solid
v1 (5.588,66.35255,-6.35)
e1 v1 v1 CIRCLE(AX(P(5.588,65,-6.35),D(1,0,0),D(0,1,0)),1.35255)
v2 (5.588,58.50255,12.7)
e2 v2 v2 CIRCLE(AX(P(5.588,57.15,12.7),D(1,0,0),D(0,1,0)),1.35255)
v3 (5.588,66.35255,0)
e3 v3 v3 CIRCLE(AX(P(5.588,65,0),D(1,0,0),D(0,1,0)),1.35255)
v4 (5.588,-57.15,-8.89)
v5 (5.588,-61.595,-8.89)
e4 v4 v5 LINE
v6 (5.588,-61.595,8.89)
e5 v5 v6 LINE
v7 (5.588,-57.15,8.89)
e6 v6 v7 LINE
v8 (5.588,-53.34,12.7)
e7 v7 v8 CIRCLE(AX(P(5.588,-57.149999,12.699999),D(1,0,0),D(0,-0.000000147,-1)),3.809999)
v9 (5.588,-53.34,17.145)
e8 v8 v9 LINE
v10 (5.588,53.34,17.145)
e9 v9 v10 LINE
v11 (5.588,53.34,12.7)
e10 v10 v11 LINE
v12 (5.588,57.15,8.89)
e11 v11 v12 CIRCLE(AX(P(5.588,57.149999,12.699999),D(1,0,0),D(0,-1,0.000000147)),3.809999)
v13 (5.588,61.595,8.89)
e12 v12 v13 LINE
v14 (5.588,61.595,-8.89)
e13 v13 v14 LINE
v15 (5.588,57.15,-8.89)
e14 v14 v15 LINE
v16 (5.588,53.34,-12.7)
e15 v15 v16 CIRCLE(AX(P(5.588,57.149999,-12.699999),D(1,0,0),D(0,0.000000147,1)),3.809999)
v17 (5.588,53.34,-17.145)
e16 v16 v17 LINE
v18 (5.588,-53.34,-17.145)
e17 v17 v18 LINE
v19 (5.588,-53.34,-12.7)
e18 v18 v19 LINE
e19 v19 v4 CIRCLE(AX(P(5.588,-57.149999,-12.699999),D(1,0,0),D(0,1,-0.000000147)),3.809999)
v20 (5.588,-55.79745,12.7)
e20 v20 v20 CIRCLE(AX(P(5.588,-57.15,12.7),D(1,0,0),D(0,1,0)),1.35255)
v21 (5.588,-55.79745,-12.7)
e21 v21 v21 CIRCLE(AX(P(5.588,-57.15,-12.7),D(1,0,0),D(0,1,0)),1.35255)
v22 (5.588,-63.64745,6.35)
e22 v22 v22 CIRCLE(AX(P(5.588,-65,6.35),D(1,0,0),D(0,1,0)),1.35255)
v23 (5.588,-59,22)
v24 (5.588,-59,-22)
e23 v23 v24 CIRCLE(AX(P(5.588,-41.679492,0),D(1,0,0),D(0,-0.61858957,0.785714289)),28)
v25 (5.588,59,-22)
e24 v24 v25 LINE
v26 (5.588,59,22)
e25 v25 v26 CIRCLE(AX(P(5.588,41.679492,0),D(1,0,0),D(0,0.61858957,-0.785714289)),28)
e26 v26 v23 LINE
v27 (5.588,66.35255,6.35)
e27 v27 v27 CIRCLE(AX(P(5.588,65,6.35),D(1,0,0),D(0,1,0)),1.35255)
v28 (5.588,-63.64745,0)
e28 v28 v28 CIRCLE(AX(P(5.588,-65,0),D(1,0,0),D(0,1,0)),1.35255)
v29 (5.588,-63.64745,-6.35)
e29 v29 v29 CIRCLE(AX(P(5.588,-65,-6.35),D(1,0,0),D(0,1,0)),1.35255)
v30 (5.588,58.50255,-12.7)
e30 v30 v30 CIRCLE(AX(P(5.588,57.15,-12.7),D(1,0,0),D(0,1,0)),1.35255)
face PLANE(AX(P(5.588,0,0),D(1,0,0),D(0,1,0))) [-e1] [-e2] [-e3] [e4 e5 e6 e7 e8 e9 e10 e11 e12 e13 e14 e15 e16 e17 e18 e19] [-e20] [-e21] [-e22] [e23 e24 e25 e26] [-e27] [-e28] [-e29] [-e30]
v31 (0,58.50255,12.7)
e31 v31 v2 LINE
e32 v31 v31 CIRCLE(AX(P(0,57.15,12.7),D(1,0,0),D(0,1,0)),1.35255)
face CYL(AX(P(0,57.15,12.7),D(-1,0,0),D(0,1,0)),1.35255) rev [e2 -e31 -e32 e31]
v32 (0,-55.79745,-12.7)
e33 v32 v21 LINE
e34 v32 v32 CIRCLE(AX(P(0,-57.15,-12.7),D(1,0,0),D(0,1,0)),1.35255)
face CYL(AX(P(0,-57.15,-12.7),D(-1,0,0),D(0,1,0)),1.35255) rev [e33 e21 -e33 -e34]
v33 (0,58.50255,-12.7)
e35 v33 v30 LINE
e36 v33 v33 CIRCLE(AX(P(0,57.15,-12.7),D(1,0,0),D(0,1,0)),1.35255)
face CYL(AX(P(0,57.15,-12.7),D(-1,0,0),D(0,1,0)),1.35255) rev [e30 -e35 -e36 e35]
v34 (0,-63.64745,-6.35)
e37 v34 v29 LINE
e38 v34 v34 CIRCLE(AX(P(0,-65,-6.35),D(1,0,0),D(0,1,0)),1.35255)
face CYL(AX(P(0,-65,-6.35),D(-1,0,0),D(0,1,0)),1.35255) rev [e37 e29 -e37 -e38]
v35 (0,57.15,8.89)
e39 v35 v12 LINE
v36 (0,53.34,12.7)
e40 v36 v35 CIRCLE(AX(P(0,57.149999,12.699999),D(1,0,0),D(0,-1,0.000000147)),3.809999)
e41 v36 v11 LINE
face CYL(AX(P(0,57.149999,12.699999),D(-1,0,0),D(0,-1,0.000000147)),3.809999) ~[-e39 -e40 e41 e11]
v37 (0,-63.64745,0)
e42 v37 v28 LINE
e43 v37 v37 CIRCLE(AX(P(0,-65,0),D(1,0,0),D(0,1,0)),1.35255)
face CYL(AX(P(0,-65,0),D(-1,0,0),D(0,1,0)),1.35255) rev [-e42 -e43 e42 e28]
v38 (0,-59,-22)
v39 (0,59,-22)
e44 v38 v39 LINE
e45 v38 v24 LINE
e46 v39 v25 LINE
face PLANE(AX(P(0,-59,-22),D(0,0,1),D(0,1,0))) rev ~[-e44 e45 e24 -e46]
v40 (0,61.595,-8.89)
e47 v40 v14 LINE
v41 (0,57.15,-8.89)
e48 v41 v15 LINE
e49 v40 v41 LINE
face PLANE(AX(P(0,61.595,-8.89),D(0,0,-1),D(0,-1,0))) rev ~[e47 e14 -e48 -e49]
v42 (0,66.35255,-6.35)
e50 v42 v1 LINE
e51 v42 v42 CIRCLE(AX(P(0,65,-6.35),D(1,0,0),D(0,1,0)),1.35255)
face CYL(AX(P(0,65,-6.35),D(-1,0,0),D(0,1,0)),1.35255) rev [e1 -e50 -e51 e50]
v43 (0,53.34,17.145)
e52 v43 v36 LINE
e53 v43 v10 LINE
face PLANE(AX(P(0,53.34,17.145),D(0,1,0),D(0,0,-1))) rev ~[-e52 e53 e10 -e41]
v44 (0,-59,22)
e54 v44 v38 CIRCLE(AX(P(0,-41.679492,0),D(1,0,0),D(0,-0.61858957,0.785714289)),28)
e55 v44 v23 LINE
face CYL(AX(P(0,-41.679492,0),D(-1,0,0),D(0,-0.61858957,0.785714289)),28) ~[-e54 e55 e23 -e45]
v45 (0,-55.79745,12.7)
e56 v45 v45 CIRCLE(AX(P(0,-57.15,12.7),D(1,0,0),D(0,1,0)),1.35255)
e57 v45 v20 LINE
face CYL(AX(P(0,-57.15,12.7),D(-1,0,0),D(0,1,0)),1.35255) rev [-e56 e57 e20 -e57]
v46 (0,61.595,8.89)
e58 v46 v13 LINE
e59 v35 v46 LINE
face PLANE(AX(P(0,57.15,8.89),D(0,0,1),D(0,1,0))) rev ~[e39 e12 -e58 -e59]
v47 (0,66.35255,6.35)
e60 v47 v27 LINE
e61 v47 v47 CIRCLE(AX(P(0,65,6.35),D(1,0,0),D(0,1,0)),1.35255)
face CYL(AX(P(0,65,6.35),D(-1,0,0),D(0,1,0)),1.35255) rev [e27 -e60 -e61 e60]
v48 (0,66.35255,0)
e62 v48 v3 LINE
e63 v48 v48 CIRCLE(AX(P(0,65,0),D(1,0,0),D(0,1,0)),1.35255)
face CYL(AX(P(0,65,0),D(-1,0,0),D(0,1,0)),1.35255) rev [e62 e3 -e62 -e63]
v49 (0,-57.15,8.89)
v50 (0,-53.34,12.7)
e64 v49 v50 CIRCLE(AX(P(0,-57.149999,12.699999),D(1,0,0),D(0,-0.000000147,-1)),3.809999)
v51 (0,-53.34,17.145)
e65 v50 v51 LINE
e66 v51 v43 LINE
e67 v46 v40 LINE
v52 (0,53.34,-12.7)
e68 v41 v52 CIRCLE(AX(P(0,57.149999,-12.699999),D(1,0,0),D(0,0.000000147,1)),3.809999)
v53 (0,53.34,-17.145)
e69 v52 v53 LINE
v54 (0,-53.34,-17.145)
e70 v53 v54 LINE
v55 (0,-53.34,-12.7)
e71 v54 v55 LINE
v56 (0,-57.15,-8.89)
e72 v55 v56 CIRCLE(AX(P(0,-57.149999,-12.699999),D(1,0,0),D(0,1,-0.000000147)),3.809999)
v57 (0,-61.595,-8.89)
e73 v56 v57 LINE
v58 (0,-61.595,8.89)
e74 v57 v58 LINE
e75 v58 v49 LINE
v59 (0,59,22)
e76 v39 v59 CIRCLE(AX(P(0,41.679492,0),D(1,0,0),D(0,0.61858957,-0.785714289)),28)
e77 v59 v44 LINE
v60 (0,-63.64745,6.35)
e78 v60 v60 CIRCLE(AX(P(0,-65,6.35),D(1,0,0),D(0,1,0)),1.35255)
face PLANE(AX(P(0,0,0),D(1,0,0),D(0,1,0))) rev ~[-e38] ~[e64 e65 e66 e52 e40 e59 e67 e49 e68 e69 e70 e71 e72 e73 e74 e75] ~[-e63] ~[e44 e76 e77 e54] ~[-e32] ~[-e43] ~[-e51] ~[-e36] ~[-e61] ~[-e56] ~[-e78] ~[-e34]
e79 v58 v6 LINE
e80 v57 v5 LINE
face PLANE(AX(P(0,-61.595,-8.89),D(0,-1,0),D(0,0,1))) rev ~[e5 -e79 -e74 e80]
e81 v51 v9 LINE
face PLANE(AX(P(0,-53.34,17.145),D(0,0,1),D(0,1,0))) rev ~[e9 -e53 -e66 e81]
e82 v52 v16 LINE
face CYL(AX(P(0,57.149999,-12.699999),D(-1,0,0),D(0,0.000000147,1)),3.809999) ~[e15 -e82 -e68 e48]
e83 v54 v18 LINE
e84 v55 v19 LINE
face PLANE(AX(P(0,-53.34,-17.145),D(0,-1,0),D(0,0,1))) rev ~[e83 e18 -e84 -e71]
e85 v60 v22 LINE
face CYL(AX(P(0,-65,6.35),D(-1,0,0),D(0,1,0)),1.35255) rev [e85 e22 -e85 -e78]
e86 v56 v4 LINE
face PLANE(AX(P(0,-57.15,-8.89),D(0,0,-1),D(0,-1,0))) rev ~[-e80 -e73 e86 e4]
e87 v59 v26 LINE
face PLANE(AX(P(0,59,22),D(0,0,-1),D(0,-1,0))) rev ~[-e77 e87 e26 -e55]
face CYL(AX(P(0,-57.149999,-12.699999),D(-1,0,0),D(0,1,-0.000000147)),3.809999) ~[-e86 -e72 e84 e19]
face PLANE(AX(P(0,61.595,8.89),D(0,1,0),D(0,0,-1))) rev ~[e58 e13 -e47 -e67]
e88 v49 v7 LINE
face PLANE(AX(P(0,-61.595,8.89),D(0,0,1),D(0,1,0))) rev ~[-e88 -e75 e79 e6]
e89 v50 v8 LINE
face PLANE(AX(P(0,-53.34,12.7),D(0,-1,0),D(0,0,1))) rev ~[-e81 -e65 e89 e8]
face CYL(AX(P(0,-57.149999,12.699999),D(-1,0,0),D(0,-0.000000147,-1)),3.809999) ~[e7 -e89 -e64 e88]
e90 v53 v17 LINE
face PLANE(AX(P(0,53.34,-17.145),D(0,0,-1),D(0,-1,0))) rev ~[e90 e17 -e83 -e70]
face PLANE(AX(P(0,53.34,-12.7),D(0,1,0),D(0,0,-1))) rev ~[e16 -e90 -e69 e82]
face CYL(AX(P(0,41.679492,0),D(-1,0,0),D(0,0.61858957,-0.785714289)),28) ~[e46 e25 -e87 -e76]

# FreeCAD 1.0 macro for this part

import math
import FreeCAD as App
import Part
import Sketcher
from FreeCAD import Vector
Q = App.Units.Quantity

doc = App.newDocument("Part")
body = doc.addObject("PartDesign::Body", "Body")

# Sketch on YZ plane
sketch1 = doc.addObject("Sketcher::SketchObject", "Sketch")
body.addObject(sketch1)
sketch1.AttachmentSupport = (doc.YZ_Plane, [""])
sketch1.MapMode = "FlatFace"
sketch1.addGeometry([
    Part.ArcOfCircle(Part.Circle(Vector(41.7, 0, 0), Vector(0, 0, 1), 28), math.radians(-52), math.radians(52)),  # 0
    Part.LineSegment(Vector(59, 22, 0), Vector(-59, 22, 0)),  # 1
    Part.ArcOfCircle(Part.Circle(Vector(-41.7, 0, 0), Vector(0, 0, 1), 28), math.radians(128), math.radians(232)),  # 2
    Part.LineSegment(Vector(-59, -22, 0), Vector(59, -22, 0)),  # 3
    Part.Circle(Vector(-57.1, -12.7, 0), Vector(0, 0, 1), 1.4),  # 4
    Part.Circle(Vector(-65, -6.3, 0), Vector(0, 0, 1), 1.4),  # 5
    Part.Circle(Vector(57.1, -12.7, 0), Vector(0, 0, 1), 1.4),  # 6
    Part.Circle(Vector(65, -6.3, 0), Vector(0, 0, 1), 1.4),  # 7
    Part.Circle(Vector(-65, 0, 0), Vector(0, 0, 1), 1.4),  # 8
    Part.Circle(Vector(-65, 6.3, 0), Vector(0, 0, 1), 1.4),  # 9
    Part.Circle(Vector(-57.1, 12.7, 0), Vector(0, 0, 1), 1.4),  # 10
    Part.LineSegment(Vector(-53.3, 12.7, 0), Vector(-53.3, 17.1, 0)),  # 11
    Part.LineSegment(Vector(-53.3, 17.1, 0), Vector(53.3, 17.1, 0)),  # 12
    Part.LineSegment(Vector(53.3, 17.1, 0), Vector(53.3, 12.7, 0)),  # 13
    Part.ArcOfCircle(Part.Circle(Vector(57.1, 12.7, 0), Vector(0, 0, 1), 3.8), math.radians(180), math.radians(270)),  # 14
    Part.LineSegment(Vector(57.1, 8.9, 0), Vector(61.6, 8.9, 0)),  # 15
    Part.LineSegment(Vector(61.6, 8.9, 0), Vector(61.6, -8.9, 0)),  # 16
    Part.LineSegment(Vector(61.6, -8.9, 0), Vector(57.1, -8.9, 0)),  # 17
    Part.ArcOfCircle(Part.Circle(Vector(57.1, -12.7, 0), Vector(0, 0, 1), 3.8), math.radians(90), math.radians(180)),  # 18
    Part.LineSegment(Vector(53.3, -12.7, 0), Vector(53.3, -17.1, 0)),  # 19
    Part.LineSegment(Vector(53.3, -17.1, 0), Vector(-53.3, -17.1, 0)),  # 20
    Part.LineSegment(Vector(-53.3, -17.1, 0), Vector(-53.3, -12.7, 0)),  # 21
    Part.ArcOfCircle(Part.Circle(Vector(-57.1, -12.7, 0), Vector(0, 0, 1), 3.8), math.radians(0), math.radians(90)),  # 22
    Part.LineSegment(Vector(-57.1, -8.9, 0), Vector(-61.6, -8.9, 0)),  # 23
    Part.LineSegment(Vector(-61.6, -8.9, 0), Vector(-61.6, 8.9, 0)),  # 24
    Part.LineSegment(Vector(-61.6, 8.9, 0), Vector(-57.1, 8.9, 0)),  # 25
    Part.ArcOfCircle(Part.Circle(Vector(-57.1, 12.7, 0), Vector(0, 0, 1), 3.8), math.radians(-90), math.radians(0)),  # 26
    Part.Circle(Vector(65, 0, 0), Vector(0, 0, 1), 1.4),  # 27
    Part.Circle(Vector(65, 6.3, 0), Vector(0, 0, 1), 1.4),  # 28
    Part.Circle(Vector(57.1, 12.7, 0), Vector(0, 0, 1), 1.4),  # 29
], False)
sketch1.addConstraint([
    Sketcher.Constraint("Coincident", 0, 2, 1, 1),
    Sketcher.Constraint("Coincident", 1, 2, 2, 1),
    Sketcher.Constraint("Coincident", 2, 2, 3, 1),
    Sketcher.Constraint("Coincident", 3, 2, 0, 1),
    Sketcher.Constraint("Coincident", 11, 2, 12, 1),
    Sketcher.Constraint("Coincident", 12, 2, 13, 1),
    Sketcher.Constraint("Tangent", 13, 2, 14, 1),
    Sketcher.Constraint("Tangent", 14, 2, 15, 1),
    Sketcher.Constraint("Coincident", 15, 2, 16, 1),
    Sketcher.Constraint("Coincident", 16, 2, 17, 1),
    Sketcher.Constraint("Tangent", 17, 2, 18, 1),
    Sketcher.Constraint("Tangent", 18, 2, 19, 1),
    Sketcher.Constraint("Coincident", 19, 2, 20, 1),
    Sketcher.Constraint("Coincident", 20, 2, 21, 1),
    Sketcher.Constraint("Tangent", 21, 2, 22, 1),
    Sketcher.Constraint("Tangent", 22, 2, 23, 1),
    Sketcher.Constraint("Coincident", 23, 2, 24, 1),
    Sketcher.Constraint("Coincident", 24, 2, 25, 1),
    Sketcher.Constraint("Tangent", 25, 2, 26, 1),
    Sketcher.Constraint("Tangent", 26, 2, 11, 1),
    Sketcher.Constraint("Horizontal", 1),
    Sketcher.Constraint("Horizontal", 3),
    Sketcher.Constraint("Vertical", 11),
    Sketcher.Constraint("Horizontal", 12),
    Sketcher.Constraint("Vertical", 13),
    Sketcher.Constraint("Horizontal", 15),
    Sketcher.Constraint("Vertical", 16),
    Sketcher.Constraint("Horizontal", 17),
    Sketcher.Constraint("Vertical", 19),
    Sketcher.Constraint("Horizontal", 20),
    Sketcher.Constraint("Vertical", 21),
    Sketcher.Constraint("Horizontal", 23),
    Sketcher.Constraint("Vertical", 24),
    Sketcher.Constraint("Horizontal", 25),
    Sketcher.Constraint("Coincident", 18, 3, 6, 3),
    Sketcher.Constraint("Coincident", 22, 3, 4, 3),
    Sketcher.Constraint("Coincident", 26, 3, 10, 3),
    Sketcher.Constraint("Coincident", 29, 3, 14, 3),
    Sketcher.Constraint("Equal", 0, 2),
    Sketcher.Constraint("Equal", 4, 5),
    Sketcher.Constraint("Equal", 5, 6),
    Sketcher.Constraint("Equal", 6, 7),
    Sketcher.Constraint("Equal", 7, 8),
    Sketcher.Constraint("Equal", 8, 9),
    Sketcher.Constraint("Equal", 9, 10),
    Sketcher.Constraint("Equal", 14, 18),
    Sketcher.Constraint("Equal", 18, 22),
    Sketcher.Constraint("Equal", 22, 26),
    Sketcher.Constraint("Equal", 10, 27),
    Sketcher.Constraint("Equal", 27, 28),
    Sketcher.Constraint("Equal", 28, 29),
    Sketcher.Constraint("Symmetric", 0, 3, 2, 3, -1, 1),
    Sketcher.Constraint("Symmetric", 7, 3, 9, 3, -1, 1),
    Sketcher.Constraint("Symmetric", 6, 3, 10, 3, -1, 1),
    Sketcher.Constraint("Symmetric", 4, 3, 14, 3, -1, 1),
    Sketcher.Constraint("Symmetric", 8, 3, 27, 3, -1, 1),
    Sketcher.Constraint("Symmetric", 5, 3, 28, 3, -1, 1),
    Sketcher.Constraint("Symmetric", 4, 3, 6, 3, -2),
    Sketcher.Constraint("Symmetric", 5, 3, 7, 3, -2),
    Sketcher.Constraint("Symmetric", 1, 2, 2, 2, -1),
    Sketcher.Constraint("PointOnObject", 8, 3, -1),
    Sketcher.Constraint("Vertical", 5, 3, 8, 3),
    Sketcher.Constraint("Equal", 17, 23),
    Sketcher.Constraint("Equal", 25, 11),
    Sketcher.Constraint("Equal", 13, 19),
    Sketcher.Constraint("Radius", 14, Q("0.15 in")),
    Sketcher.Constraint("DistanceX", 12, 1, 12, 2, Q("4.2 in")),
    Sketcher.Constraint("DistanceY", 16, 2, 16, 1, Q("0.7 in")),
    Sketcher.Constraint("Diameter", 4, Q("0.1065 in")),
    Sketcher.Constraint("DistanceY", 5, 3, 9, 3, Q("0.5 in")),
    Sketcher.Constraint("DistanceX", 15, 1, 15, 2, Q("0.175 in")),
    Sketcher.Constraint("Radius", 0, Q("28 mm")),
    Sketcher.Constraint("DistanceX", 1, 2, 1, 1, Q("118 mm")),
    Sketcher.Constraint("DistanceX", 5, 3, -1, 1, Q("65 mm")),
    Sketcher.Constraint("DistanceY", -1, 1, 0, 2, Q("22 mm")),
])
pad1 = doc.addObject("PartDesign::Pad", "Pad")
body.addObject(pad1)
pad1.Profile = sketch1
pad1.Length = Q("0.22 in")

doc.recompute()
